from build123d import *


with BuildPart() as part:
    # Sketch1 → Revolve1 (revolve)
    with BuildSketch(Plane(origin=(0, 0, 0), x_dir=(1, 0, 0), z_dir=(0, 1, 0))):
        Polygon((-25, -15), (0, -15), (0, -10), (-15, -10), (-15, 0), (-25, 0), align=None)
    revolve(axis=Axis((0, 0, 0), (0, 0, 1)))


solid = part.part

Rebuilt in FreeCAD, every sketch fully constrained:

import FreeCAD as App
import Part
import Sketcher

doc = App.newDocument("Part")
body = doc.addObject("PartDesign::Body", "Body")

# Sketch on XZ plane
sketch1 = body.newObject("Sketcher::SketchObject", "Sketch")
sketch1.AttachmentSupport = (doc.getObject("XZ_Plane"), [""])
sketch1.MapMode = "FlatFace"
sketch1.addGeometry(Part.LineSegment(App.Vector(-25, 15, 0), App.Vector(0, 15, 0)), False)
sketch1.addGeometry(Part.LineSegment(App.Vector(0, 15, 0), App.Vector(0, 10, 0)), False)
sketch1.addGeometry(Part.LineSegment(App.Vector(0, 10, 0), App.Vector(-15, 10, 0)), False)
sketch1.addGeometry(Part.LineSegment(App.Vector(-15, 10, 0), App.Vector(-15, 0, 0)), False)
sketch1.addGeometry(Part.LineSegment(App.Vector(-15, 0, 0), App.Vector(-25, 0, 0)), False)
sketch1.addGeometry(Part.LineSegment(App.Vector(-25, 0, 0), App.Vector(-25, 15, 0)), False)
sketch1.addConstraint(Sketcher.Constraint("Coincident", 0, 2, 1, 1))
sketch1.addConstraint(Sketcher.Constraint("Coincident", 1, 2, 2, 1))
sketch1.addConstraint(Sketcher.Constraint("Coincident", 2, 2, 3, 1))
sketch1.addConstraint(Sketcher.Constraint("Coincident", 3, 2, 4, 1))
sketch1.addConstraint(Sketcher.Constraint("Coincident", 4, 2, 5, 1))
sketch1.addConstraint(Sketcher.Constraint("Coincident", 5, 2, 0, 1))
sketch1.addConstraint(Sketcher.Constraint("Horizontal", 0))
sketch1.addConstraint(Sketcher.Constraint("Vertical", 1))
sketch1.addConstraint(Sketcher.Constraint("Horizontal", 2))
sketch1.addConstraint(Sketcher.Constraint("Vertical", 3))
sketch1.addConstraint(Sketcher.Constraint("Horizontal", 4))
sketch1.addConstraint(Sketcher.Constraint("Vertical", 5))
sketch1.addConstraint(Sketcher.Constraint("PointOnObject", 0, 2, -2))
sketch1.addConstraint(Sketcher.Constraint("PointOnObject", 3, 2, -1))
sketch1.addConstraint(Sketcher.Constraint("Equal", 4, 3))
sketch1.addConstraint(Sketcher.Constraint("Equal", 2, 5))
sketch1.addConstraint(Sketcher.Constraint("DistanceX", 0, 1, 0, 2, 25.0))
sketch1.addConstraint(Sketcher.Constraint("DistanceX", 2, 2, 2, 1, 15.0))
revolution = body.newObject("PartDesign::Revolution", "Revolution")
revolution.Profile = sketch1
revolution.ReferenceAxis = (sketch1, ["V_Axis"])
revolution.Angle = 360

doc.recompute()
